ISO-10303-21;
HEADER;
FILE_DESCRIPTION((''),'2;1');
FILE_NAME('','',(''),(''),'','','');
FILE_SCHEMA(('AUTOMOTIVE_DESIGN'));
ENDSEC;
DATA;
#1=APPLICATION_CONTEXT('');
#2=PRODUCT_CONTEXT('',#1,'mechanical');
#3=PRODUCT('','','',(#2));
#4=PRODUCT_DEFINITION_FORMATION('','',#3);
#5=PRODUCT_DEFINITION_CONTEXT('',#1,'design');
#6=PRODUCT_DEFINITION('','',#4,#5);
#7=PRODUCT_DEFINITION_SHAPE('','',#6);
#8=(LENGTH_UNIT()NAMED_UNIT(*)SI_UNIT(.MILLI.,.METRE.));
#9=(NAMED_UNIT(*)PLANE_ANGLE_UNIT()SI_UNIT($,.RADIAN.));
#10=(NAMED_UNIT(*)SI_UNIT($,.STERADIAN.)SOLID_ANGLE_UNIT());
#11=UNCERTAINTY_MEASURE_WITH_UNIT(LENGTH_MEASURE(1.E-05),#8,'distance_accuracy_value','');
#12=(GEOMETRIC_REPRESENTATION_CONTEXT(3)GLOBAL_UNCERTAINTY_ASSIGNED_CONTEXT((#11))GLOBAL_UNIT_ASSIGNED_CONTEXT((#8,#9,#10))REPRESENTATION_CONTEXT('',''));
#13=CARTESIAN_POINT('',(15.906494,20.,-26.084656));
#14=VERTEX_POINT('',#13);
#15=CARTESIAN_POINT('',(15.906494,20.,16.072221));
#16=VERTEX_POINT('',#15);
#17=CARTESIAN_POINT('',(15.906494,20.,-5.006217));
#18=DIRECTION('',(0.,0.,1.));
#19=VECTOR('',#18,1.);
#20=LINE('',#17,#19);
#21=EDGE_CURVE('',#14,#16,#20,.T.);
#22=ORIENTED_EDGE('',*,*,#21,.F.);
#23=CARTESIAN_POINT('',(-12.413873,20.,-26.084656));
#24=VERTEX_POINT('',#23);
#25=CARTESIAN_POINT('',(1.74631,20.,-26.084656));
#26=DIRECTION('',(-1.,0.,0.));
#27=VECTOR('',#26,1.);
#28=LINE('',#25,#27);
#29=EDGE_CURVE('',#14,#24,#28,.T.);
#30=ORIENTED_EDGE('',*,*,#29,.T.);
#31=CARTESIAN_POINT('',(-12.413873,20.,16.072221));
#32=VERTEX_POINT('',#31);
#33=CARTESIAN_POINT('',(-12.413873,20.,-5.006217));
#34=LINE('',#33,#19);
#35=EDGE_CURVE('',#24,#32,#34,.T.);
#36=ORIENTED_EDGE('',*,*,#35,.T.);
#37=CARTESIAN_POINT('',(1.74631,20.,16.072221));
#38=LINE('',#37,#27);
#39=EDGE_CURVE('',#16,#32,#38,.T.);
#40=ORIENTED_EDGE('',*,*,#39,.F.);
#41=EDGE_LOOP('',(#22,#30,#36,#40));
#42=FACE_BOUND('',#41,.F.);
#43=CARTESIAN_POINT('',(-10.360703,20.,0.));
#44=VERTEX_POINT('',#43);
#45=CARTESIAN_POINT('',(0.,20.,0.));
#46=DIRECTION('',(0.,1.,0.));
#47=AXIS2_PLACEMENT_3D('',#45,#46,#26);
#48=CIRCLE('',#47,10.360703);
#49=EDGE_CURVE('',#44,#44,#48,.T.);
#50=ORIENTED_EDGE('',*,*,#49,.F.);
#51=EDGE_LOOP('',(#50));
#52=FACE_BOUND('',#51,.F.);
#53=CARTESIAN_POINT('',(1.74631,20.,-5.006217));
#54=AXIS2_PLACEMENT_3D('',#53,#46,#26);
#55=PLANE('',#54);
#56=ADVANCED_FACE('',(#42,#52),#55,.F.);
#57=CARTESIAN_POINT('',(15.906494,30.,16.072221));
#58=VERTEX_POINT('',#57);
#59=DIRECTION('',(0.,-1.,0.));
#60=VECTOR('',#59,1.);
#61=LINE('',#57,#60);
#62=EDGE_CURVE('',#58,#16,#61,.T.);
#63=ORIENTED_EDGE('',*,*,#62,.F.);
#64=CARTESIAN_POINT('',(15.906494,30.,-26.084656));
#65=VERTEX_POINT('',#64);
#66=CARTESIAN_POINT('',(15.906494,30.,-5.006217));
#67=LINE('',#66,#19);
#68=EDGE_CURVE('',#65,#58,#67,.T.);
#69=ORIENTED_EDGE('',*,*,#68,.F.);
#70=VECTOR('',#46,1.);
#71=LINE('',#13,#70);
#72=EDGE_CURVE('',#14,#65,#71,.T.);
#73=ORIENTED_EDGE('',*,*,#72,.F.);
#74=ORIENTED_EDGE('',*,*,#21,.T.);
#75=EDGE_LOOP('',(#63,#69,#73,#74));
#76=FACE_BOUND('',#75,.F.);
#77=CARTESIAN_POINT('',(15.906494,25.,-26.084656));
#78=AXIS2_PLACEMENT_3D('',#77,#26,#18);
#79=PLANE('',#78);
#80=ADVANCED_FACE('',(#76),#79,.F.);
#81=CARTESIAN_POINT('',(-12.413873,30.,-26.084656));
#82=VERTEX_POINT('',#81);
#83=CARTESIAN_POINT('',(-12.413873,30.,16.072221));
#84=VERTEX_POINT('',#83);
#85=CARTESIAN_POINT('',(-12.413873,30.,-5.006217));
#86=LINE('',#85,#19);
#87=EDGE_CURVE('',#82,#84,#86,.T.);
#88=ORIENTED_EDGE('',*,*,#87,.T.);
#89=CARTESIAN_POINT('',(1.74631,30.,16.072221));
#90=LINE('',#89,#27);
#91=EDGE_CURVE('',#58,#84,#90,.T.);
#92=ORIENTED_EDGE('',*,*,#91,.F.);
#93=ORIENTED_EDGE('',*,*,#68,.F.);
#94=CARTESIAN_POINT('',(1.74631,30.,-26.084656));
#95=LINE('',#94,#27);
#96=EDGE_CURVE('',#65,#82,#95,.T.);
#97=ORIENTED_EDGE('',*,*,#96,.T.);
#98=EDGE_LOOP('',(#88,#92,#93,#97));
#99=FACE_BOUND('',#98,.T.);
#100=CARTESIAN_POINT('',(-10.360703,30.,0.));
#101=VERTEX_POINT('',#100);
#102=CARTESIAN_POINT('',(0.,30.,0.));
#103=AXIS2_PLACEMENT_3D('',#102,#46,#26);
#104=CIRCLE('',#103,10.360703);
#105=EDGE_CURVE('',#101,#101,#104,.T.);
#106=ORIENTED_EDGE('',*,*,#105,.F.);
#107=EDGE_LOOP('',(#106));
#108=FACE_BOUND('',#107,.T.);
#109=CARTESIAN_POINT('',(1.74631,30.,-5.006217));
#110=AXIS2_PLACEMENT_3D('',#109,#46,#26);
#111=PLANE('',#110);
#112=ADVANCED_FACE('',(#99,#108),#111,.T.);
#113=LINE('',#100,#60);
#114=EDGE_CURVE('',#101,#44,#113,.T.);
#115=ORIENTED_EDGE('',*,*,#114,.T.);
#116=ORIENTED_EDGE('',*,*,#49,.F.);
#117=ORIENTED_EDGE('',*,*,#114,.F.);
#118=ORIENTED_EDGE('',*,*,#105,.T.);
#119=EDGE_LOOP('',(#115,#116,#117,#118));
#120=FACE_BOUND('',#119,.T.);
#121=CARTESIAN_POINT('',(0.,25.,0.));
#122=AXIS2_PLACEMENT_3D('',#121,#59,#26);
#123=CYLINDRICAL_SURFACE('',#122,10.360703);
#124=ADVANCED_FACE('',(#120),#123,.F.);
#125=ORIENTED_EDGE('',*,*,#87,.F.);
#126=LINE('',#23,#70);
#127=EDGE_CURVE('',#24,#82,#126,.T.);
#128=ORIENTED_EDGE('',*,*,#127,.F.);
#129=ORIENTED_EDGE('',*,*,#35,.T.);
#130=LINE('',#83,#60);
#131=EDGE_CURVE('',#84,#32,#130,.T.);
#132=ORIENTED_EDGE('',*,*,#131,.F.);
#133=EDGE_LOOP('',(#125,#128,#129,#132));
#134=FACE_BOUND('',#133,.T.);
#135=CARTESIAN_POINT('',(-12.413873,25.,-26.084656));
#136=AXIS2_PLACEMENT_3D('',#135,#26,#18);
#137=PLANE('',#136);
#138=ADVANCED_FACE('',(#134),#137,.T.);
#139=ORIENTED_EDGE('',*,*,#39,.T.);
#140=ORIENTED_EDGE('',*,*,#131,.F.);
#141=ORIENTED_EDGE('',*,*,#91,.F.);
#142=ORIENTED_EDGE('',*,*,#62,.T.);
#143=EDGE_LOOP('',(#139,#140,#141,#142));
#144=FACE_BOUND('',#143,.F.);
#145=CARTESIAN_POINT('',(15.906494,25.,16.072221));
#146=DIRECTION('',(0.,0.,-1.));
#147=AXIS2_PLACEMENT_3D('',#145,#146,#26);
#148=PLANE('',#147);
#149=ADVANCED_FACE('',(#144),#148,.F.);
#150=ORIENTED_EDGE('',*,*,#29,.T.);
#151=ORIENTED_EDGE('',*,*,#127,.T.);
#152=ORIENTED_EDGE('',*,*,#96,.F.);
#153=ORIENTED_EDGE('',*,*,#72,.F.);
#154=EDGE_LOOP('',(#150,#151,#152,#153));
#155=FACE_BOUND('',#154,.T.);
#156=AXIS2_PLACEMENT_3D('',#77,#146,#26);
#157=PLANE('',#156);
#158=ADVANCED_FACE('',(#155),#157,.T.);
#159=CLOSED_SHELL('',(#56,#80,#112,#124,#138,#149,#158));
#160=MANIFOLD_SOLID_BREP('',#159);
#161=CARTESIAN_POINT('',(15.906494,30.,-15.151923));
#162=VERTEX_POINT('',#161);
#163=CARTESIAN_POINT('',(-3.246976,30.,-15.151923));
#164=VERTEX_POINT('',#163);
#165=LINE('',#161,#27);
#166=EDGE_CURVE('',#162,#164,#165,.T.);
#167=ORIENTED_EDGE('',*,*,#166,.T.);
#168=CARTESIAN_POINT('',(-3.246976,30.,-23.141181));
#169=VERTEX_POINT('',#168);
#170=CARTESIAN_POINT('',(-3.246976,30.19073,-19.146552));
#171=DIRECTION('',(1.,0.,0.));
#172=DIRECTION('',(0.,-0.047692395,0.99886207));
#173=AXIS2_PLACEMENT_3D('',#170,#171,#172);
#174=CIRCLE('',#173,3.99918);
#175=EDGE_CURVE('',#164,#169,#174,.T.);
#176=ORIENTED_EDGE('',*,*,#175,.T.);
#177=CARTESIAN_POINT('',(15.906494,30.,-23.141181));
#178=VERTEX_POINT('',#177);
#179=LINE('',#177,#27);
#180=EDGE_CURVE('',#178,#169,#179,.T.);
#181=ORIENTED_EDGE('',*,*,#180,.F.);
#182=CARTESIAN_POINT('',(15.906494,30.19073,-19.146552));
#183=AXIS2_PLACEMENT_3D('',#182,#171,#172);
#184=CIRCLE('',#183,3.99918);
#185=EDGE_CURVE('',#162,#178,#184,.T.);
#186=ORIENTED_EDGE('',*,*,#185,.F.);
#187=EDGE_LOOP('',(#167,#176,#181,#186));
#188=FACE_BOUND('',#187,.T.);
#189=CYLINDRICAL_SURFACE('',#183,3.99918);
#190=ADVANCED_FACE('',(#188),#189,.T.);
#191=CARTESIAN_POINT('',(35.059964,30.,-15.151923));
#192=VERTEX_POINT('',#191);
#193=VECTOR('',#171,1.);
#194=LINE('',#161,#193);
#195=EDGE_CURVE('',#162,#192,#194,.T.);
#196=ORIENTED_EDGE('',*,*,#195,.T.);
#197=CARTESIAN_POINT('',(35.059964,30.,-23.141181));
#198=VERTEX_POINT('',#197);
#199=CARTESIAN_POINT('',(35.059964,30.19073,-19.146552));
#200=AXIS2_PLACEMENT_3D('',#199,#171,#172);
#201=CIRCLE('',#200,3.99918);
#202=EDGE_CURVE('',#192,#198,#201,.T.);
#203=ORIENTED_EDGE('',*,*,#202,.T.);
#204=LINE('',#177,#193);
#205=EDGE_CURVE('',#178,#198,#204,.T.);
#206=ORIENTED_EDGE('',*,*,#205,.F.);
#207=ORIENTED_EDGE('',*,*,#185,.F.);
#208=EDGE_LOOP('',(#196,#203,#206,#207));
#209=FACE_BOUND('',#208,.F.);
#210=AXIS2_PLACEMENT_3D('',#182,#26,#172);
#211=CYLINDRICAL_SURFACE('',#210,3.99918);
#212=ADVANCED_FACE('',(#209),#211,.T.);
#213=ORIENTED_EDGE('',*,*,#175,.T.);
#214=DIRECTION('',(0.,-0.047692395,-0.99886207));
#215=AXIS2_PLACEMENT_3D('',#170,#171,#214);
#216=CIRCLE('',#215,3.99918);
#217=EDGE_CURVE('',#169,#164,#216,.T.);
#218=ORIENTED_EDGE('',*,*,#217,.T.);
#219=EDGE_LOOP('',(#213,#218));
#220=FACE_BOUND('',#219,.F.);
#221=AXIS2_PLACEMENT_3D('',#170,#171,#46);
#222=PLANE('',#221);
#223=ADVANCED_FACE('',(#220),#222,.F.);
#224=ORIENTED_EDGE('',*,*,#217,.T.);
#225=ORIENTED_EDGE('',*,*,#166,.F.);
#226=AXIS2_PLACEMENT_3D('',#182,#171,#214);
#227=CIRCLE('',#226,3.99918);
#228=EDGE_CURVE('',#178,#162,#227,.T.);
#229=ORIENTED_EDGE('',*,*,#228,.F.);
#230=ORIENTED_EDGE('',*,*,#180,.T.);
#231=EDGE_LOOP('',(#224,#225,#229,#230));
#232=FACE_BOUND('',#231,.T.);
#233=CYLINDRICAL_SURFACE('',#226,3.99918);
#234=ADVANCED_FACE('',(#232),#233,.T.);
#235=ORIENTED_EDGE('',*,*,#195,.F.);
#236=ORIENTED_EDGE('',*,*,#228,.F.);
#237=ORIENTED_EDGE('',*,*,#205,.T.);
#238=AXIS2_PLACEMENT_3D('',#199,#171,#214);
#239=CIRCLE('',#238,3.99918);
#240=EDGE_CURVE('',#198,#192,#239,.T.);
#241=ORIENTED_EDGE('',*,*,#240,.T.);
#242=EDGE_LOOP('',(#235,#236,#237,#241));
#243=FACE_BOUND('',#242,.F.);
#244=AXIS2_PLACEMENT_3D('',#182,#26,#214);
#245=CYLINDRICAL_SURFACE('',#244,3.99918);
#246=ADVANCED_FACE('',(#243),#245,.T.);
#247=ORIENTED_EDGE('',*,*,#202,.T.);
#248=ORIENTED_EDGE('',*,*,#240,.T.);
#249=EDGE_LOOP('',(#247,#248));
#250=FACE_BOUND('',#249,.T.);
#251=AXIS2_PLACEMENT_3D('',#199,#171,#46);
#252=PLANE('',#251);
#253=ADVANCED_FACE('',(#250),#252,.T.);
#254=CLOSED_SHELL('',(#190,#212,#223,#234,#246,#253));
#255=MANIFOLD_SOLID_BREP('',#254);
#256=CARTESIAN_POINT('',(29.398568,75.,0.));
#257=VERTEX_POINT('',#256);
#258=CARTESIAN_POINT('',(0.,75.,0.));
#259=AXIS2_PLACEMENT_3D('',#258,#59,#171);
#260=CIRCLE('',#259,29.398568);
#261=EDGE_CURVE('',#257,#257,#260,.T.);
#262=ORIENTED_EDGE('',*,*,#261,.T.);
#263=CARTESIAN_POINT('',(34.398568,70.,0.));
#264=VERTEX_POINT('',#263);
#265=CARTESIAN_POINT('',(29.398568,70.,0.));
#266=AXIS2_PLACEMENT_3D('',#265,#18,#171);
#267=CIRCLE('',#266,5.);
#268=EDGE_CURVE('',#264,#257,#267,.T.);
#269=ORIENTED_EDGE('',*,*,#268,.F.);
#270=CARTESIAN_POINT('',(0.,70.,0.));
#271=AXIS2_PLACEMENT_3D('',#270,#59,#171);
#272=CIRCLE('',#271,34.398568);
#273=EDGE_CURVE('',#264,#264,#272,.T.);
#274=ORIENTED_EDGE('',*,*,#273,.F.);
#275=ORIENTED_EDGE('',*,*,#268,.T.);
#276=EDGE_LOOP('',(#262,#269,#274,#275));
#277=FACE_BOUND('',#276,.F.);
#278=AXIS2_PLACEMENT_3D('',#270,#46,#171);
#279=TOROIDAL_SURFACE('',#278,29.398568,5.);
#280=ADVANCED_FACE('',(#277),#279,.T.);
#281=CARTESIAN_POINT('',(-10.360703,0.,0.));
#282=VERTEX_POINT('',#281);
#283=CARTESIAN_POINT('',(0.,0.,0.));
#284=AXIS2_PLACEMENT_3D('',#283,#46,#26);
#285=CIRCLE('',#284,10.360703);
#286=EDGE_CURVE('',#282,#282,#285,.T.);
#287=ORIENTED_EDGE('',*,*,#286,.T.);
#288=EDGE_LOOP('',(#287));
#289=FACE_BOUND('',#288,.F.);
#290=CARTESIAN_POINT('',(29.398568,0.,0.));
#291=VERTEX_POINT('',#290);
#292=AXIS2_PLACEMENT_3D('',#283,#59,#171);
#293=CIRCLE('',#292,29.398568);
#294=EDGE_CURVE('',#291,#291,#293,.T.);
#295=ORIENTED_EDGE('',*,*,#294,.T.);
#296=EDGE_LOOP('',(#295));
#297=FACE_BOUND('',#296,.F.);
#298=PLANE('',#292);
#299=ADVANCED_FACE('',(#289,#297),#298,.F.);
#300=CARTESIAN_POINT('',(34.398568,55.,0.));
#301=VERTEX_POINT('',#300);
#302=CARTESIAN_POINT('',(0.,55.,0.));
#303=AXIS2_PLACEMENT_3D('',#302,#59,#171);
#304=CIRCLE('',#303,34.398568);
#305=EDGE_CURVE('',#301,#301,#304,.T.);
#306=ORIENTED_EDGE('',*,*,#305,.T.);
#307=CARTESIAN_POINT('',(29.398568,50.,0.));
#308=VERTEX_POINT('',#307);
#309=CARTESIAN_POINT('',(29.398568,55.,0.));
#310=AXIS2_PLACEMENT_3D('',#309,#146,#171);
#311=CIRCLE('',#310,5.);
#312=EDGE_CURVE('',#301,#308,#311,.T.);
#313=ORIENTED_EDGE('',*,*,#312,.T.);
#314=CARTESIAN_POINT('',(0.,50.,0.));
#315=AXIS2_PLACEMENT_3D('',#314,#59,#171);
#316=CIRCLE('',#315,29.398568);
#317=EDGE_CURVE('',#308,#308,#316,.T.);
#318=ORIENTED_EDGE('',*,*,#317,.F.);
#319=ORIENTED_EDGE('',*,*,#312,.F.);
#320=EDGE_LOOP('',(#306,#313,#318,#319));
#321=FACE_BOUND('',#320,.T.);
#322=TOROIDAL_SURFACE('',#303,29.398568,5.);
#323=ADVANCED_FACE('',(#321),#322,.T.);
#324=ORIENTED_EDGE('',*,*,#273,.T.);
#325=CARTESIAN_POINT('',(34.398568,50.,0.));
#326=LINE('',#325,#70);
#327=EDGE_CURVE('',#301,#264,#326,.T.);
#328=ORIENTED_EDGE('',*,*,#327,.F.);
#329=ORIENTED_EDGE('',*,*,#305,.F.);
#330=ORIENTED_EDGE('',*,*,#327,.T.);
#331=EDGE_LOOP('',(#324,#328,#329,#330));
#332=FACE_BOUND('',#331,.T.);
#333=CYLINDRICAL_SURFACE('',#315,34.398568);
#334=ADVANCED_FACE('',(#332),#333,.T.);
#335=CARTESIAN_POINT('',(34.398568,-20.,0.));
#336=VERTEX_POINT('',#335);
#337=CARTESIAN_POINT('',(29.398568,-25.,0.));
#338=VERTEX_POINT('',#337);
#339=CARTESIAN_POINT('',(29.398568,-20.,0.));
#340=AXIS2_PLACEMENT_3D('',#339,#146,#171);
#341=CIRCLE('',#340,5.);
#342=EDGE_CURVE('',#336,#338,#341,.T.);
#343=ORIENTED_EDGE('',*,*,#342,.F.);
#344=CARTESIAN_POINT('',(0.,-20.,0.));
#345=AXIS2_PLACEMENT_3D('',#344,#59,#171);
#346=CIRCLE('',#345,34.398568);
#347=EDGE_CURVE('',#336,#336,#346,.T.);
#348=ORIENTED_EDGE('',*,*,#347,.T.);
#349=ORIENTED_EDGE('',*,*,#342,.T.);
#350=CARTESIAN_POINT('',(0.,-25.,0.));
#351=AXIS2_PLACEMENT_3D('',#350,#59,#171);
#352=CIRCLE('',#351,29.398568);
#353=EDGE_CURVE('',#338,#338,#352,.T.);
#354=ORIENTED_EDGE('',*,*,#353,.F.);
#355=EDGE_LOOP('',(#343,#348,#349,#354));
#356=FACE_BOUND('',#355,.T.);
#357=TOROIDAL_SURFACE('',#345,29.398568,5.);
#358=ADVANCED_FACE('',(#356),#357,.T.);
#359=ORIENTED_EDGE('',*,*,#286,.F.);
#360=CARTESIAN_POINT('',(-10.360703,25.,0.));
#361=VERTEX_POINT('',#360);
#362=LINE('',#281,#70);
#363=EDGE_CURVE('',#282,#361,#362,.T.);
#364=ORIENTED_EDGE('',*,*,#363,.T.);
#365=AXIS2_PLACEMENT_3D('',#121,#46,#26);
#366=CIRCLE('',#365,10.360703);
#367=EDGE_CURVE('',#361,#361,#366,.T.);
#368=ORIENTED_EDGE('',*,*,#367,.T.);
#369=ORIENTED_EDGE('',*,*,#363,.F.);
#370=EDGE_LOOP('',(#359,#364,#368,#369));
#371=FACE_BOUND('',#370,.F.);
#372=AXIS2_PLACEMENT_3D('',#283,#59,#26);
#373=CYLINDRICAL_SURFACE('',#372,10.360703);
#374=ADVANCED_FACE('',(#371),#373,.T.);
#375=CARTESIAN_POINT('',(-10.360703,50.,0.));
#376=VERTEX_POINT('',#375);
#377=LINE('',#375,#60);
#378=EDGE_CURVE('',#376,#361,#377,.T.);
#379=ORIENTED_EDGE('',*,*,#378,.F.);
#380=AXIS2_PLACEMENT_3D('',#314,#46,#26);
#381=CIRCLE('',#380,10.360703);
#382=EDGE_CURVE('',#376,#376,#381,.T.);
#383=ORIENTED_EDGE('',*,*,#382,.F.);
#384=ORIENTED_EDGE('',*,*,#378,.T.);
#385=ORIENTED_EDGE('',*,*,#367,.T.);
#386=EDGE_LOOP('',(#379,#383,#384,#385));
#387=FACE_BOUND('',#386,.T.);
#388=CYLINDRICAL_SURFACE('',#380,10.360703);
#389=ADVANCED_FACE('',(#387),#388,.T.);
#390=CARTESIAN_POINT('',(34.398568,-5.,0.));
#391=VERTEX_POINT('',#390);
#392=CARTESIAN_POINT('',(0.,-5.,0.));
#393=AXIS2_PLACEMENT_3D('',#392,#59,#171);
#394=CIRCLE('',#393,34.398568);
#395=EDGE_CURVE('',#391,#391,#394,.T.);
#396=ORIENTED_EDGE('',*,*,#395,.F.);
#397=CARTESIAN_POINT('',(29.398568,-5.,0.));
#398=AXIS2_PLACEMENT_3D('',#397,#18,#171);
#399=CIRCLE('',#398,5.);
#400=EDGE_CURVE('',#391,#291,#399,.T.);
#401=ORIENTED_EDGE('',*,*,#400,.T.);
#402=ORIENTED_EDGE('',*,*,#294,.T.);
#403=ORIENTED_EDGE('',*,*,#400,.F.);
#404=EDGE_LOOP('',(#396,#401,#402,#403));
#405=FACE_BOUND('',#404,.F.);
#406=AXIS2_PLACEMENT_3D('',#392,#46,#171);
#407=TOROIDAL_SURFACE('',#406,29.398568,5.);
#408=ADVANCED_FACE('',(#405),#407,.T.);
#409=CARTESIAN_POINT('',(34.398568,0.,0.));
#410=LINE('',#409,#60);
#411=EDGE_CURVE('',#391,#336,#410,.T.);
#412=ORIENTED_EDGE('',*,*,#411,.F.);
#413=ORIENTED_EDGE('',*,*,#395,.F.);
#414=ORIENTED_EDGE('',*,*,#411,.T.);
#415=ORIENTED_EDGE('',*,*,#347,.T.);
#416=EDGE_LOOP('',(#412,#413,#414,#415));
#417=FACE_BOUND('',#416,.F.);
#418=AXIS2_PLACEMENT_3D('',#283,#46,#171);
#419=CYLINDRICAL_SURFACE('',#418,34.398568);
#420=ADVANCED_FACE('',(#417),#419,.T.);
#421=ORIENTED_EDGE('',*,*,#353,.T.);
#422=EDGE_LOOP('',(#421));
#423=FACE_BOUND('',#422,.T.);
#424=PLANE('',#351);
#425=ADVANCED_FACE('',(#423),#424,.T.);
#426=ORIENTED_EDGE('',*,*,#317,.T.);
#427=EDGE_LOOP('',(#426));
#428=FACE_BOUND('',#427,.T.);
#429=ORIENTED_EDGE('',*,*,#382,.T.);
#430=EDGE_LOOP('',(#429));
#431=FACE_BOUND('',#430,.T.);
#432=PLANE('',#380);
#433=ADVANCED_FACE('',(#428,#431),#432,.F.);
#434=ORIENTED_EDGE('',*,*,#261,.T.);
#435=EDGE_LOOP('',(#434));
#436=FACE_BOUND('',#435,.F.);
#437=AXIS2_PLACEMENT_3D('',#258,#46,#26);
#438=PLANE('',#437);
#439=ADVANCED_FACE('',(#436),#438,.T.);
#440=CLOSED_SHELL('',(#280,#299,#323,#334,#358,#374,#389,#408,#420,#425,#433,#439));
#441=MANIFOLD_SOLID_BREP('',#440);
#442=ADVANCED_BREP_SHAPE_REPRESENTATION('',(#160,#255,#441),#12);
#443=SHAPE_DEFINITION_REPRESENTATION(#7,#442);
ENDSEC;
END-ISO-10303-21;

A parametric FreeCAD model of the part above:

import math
import FreeCAD as App
import Part
import Sketcher
from FreeCAD import Vector


def edges_at(feature, points):
    """Names of the edges that pass closest to the given points."""
    edges = feature.Shape.Edges
    near = lambda p: min(range(len(edges)), key=lambda i: edges[i].distToShape(Part.Vertex(*p))[0])
    return sorted({f"Edge{near(p) + 1}" for p in points})

doc = App.newDocument("Part")
body = doc.addObject("PartDesign::Body", "Body")

sketch1 = body.newObject("Sketcher::SketchObject", "Sketch")
sketch1.AttachmentSupport = (doc.getObject("XZ_Plane"), [""])
sketch1.MapMode = "FlatFace"
sketch1.addGeometry(Part.Circle(Vector(0, 0, 0), Vector(0, 0, 1), 34.398568), False)
sketch1.addConstraint([
    Sketcher.Constraint("Coincident", 0, 3, -1, 1),
    Sketcher.Constraint("Diameter", 0, 68.797137),
])
pad1 = body.newObject("PartDesign::Pad", "Pad")
pad1.Profile = sketch1
pad1.Length = 25

sketch2 = body.newObject("Sketcher::SketchObject", "Sketch001")
sketch2.AttachmentSupport = (doc.getObject("XZ_Plane"), [""])
sketch2.MapMode = "FlatFace"
sketch2.addGeometry(Part.Circle(Vector(0, 0, 0), Vector(0, 0, 1), 10.360703), False)
sketch2.addConstraint([
    Sketcher.Constraint("Coincident", 0, 3, -1, 1),
    Sketcher.Constraint("Diameter", 0, 20.721406),
])
pad2 = body.newObject("PartDesign::Pad", "Pad001")
pad2.Profile = sketch2
pad2.Length = 25
pad2.Reversed = True
doc.recompute()

fillet = body.newObject("PartDesign::Fillet", "Fillet")
fillet.Base = (pad2, edges_at(pad2, [(-34.399, 0, 0), (-34.399, -25, 0)]))
fillet.Radius = 5
body2 = doc.addObject("PartDesign::Body", "Body001")

sketch3 = body2.newObject("Sketcher::SketchObject", "Sketch002")
sketch3.AttachmentSupport = (doc.getObject("XZ_Plane001"), [""])
sketch3.MapMode = "FlatFace"
sketch3.AttachmentOffset = App.Placement(Vector(0, 0, -25), App.Rotation())
sketch3.addGeometry([
    Part.LineSegment(Vector(15.906494, 16.072221, 0), Vector(15.906494, -26.084656, 0)),
    Part.LineSegment(Vector(15.906494, -26.084656, 0), Vector(-12.413873, -26.084656, 0)),
    Part.LineSegment(Vector(-12.413873, -26.084656, 0), Vector(-12.413873, 16.072221, 0)),
    Part.LineSegment(Vector(-12.413873, 16.072221, 0), Vector(15.906494, 16.072221, 0)),
    Part.Circle(Vector(0, 0, 0), Vector(0, 0, 1), 10.360703),
], False)
sketch3.addConstraint([
    Sketcher.Constraint("Coincident", 0, 2, 1, 1),
    Sketcher.Constraint("Coincident", 1, 2, 2, 1),
    Sketcher.Constraint("Coincident", 2, 2, 3, 1),
    Sketcher.Constraint("Coincident", 3, 2, 0, 1),
    Sketcher.Constraint("Vertical", 0),
    Sketcher.Constraint("Horizontal", 1),
    Sketcher.Constraint("Vertical", 2),
    Sketcher.Constraint("Horizontal", 3),
    Sketcher.Constraint("Coincident", 4, 3, -1, 1),
    Sketcher.Constraint("Diameter", 4, 20.721406),
    Sketcher.Constraint("DistanceX", 1, 2, 1, 1, 28.320367),
    Sketcher.Constraint("DistanceY", 0, 2, 0, 1, 42.156877),
    Sketcher.Constraint("DistanceY", -1, 1, 2, 2, 16.072221),
    Sketcher.Constraint("DistanceX", -1, 1, 0, 2, 15.906494),
])
pad3 = body2.newObject("PartDesign::Pad", "Pad002")
pad3.Profile = sketch3
pad3.Length = 10
pad3.Midplane = True
body3 = doc.addObject("PartDesign::Body", "Body002")

sketch4 = body3.newObject("Sketcher::SketchObject", "Sketch003")
sketch4.AttachmentSupport = (doc.getObject("YZ_Plane002"), [""])
sketch4.MapMode = "FlatFace"
sketch4.AttachmentOffset = App.Placement(Vector(0, 0, 15.906494), App.Rotation())
sketch4.addGeometry([
    Part.ArcOfCircle(Part.Circle(Vector(30.19073, -19.146552, 0), Vector(0, 0, 1), 3.99918), math.radians(92.73361), math.radians(267.26639)),
    Part.ArcOfCircle(Part.Circle(Vector(30.19073, -19.146552, 0), Vector(0, 0, 1), 3.99918), math.radians(-92.73361), math.radians(92.73361)),
], False)
sketch4.addConstraint([
    Sketcher.Constraint("Tangent", 0, 1, 1, 2),
    Sketcher.Constraint("Coincident", 1, 1, 0, 2),
    Sketcher.Constraint("Vertical", 0, 1, 1, 1),
    Sketcher.Constraint("DistanceX", -1, 1, 0, 1, 30.0),
    Sketcher.Constraint("Radius", 0, 3.99918),
    Sketcher.Constraint("DistanceX", -1, 1, 0, 3, 30.19073),
    Sketcher.Constraint("DistanceY", 1, 1, -1, 1, 23.141181),
])
pad4 = body3.newObject("PartDesign::Pad", "Pad003")
pad4.Profile = sketch4
pad4.Length = 38.30694
pad4.Midplane = True
body4 = doc.addObject("PartDesign::Body", "Body003")
doc.recompute()

body4.BaseFeature = body
doc.recompute()

mirroring = doc.addObject("Part::Mirroring", "Mirroring")
mirroring.Source = body
mirroring.Base = Vector(0, 25, 0)
mirroring.Normal = Vector(0, 1, 0)
body5 = doc.addObject("PartDesign::Body", "Body004")
body5.BaseFeature = mirroring
boolean = body4.newObject("PartDesign::Boolean", "Boolean")
boolean.Type = "Fuse"
boolean.addObjects([body5])
doc.recompute()
mirroring.Visibility = False

doc.recompute()
